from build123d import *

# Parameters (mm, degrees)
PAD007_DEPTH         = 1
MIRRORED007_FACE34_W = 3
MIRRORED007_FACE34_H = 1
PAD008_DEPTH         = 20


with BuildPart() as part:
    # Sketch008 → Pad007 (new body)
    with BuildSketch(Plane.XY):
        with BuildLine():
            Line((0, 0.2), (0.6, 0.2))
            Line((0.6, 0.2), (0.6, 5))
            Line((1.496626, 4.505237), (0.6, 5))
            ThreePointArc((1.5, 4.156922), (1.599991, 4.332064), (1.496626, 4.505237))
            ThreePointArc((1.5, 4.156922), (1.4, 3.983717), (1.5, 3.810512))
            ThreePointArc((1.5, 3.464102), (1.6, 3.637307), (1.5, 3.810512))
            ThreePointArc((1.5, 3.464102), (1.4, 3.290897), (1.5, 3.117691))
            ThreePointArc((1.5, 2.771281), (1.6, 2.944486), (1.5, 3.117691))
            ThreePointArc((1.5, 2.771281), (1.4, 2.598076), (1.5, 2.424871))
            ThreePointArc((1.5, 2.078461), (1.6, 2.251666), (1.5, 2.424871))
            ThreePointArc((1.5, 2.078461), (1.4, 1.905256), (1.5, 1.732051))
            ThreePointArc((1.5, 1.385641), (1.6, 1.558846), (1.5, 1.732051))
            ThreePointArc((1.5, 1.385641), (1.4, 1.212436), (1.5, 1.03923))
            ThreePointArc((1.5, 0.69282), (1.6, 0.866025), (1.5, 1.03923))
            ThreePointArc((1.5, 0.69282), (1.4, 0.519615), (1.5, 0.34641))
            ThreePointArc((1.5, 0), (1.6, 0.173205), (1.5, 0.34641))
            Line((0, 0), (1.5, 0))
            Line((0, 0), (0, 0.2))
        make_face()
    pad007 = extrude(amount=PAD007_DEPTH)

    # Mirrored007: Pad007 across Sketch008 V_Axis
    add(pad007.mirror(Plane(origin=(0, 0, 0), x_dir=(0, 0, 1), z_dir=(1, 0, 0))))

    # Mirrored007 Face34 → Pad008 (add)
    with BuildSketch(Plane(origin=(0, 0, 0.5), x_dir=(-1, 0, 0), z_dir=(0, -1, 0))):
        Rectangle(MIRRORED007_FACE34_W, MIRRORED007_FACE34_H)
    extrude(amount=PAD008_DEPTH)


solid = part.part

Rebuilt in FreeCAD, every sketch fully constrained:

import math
import FreeCAD as App
import Part
import Sketcher

V = App.Vector

doc = App.newDocument("Part")
params = doc.addObject("Spreadsheet::Sheet", "Params")
for row, (alias, value) in enumerate([
    ("sketch1_radius", "0.2 mm"),
    ("sketch1_width", "0.6 mm"),
    ("sketch1_width2", "1.5 mm"),
    ("sketch1_height", "0.2 mm"),
    ("sketch1_height2", "4.8 mm"),
    ("pad1_length", "1 mm"),
    ("sketch2_width", "3 mm"),
    ("sketch2_height", "1 mm"),
    ("pad2_length", "20 mm"),
], start=1):
    params.set(f"A{row}", alias)
    params.set(f"B{row}", "=" + value)
    params.setAlias(f"B{row}", alias)

body = doc.addObject("PartDesign::Body", "Body")

# Sketch on XY plane
sketch1 = doc.addObject("Sketcher::SketchObject", "Sketch")
body.addObject(sketch1)
sketch1.AttachmentSupport = (doc.XY_Plane, [""])
sketch1.MapMode = "FlatFace"
sketch1.addGeometry(Part.LineSegment(V(0.6, 0.2, 0), V(0, 0.2, 0)), False)
sketch1.addGeometry(Part.LineSegment(V(0, 0.2, 0), V(0, 0, 0)), False)
sketch1.addGeometry(Part.LineSegment(V(0, 0, 0), V(1.5, 0, 0)), False)
sketch1.addGeometry(Part.ArcOfCircle(Part.Circle(V(1.4, 0.17, 0), V(0, 0, 1), 0.2), math.radians(-60), math.radians(60)), False)
sketch1.addGeometry(Part.ArcOfCircle(Part.Circle(V(1.6, 0.52, 0), V(0, 0, 1), 0.2), math.radians(120), math.radians(240)), False)
sketch1.addGeometry(Part.ArcOfCircle(Part.Circle(V(1.4, 0.87, 0), V(0, 0, 1), 0.2), math.radians(-60), math.radians(60)), False)
sketch1.addGeometry(Part.ArcOfCircle(Part.Circle(V(1.6, 1.21, 0), V(0, 0, 1), 0.2), math.radians(120), math.radians(240)), False)
sketch1.addGeometry(Part.ArcOfCircle(Part.Circle(V(1.4, 1.56, 0), V(0, 0, 1), 0.2), math.radians(-60), math.radians(60)), False)
sketch1.addGeometry(Part.ArcOfCircle(Part.Circle(V(1.6, 1.91, 0), V(0, 0, 1), 0.2), math.radians(120), math.radians(240)), False)
sketch1.addGeometry(Part.ArcOfCircle(Part.Circle(V(1.4, 2.25, 0), V(0, 0, 1), 0.2), math.radians(-60), math.radians(60)), False)
sketch1.addGeometry(Part.ArcOfCircle(Part.Circle(V(1.6, 2.6, 0), V(0, 0, 1), 0.2), math.radians(120), math.radians(240)), False)
sketch1.addGeometry(Part.ArcOfCircle(Part.Circle(V(1.4, 2.94, 0), V(0, 0, 1), 0.2), math.radians(-60), math.radians(60)), False)
sketch1.addGeometry(Part.ArcOfCircle(Part.Circle(V(1.6, 3.29, 0), V(0, 0, 1), 0.2), math.radians(120), math.radians(240)), False)
sketch1.addGeometry(Part.ArcOfCircle(Part.Circle(V(1.4, 3.64, 0), V(0, 0, 1), 0.2), math.radians(-60), math.radians(60)), False)
sketch1.addGeometry(Part.ArcOfCircle(Part.Circle(V(1.6, 3.98, 0), V(0, 0, 1), 0.2), math.radians(120), math.radians(240)), False)
sketch1.addGeometry(Part.ArcOfCircle(Part.Circle(V(1.4, 4.33, 0), V(0, 0, 1), 0.2), math.radians(-60), math.radians(61)), False)
sketch1.addGeometry(Part.LineSegment(V(1.5, 4.51, 0), V(0.6, 5, 0)), False)
sketch1.addGeometry(Part.LineSegment(V(0.6, 5, 0), V(0.6, 0.2, 0)), False)
sketch1.addConstraint(Sketcher.Constraint("Coincident", 0, 2, 1, 1))
sketch1.addConstraint(Sketcher.Constraint("Coincident", 1, 2, 2, 1))
sketch1.addConstraint(Sketcher.Constraint("Coincident", 2, 2, 3, 1))
sketch1.addConstraint(Sketcher.Constraint("Tangent", 3, 2, 4, 2))
sketch1.addConstraint(Sketcher.Constraint("Tangent", 4, 1, 5, 1))
sketch1.addConstraint(Sketcher.Constraint("Coincident", 5, 2, 6, 2))
sketch1.addConstraint(Sketcher.Constraint("Coincident", 6, 1, 7, 1))
sketch1.addConstraint(Sketcher.Constraint("Tangent", 7, 2, 8, 2))
sketch1.addConstraint(Sketcher.Constraint("Tangent", 8, 1, 9, 1))
sketch1.addConstraint(Sketcher.Constraint("Tangent", 9, 2, 10, 2))
sketch1.addConstraint(Sketcher.Constraint("Tangent", 10, 1, 11, 1))
sketch1.addConstraint(Sketcher.Constraint("Coincident", 11, 2, 12, 2))
sketch1.addConstraint(Sketcher.Constraint("Coincident", 12, 1, 13, 1))
sketch1.addConstraint(Sketcher.Constraint("Tangent", 13, 2, 14, 2))
sketch1.addConstraint(Sketcher.Constraint("Coincident", 14, 1, 15, 1))
sketch1.addConstraint(Sketcher.Constraint("Coincident", 15, 2, 16, 1))
sketch1.addConstraint(Sketcher.Constraint("Coincident", 16, 2, 17, 1))
sketch1.addConstraint(Sketcher.Constraint("Coincident", 17, 2, 0, 1))
sketch1.addConstraint(Sketcher.Constraint("Horizontal", 0))
sketch1.addConstraint(Sketcher.Constraint("Vertical", 1))
sketch1.addConstraint(Sketcher.Constraint("Horizontal", 2))
sketch1.addConstraint(Sketcher.Constraint("Vertical", 17))
sketch1.addConstraint(Sketcher.Constraint("Coincident", 1, 2, -1, 1))
sketch1.addConstraint(Sketcher.Constraint("Equal", 3, 4))
sketch1.addConstraint(Sketcher.Constraint("Equal", 4, 5))
sketch1.addConstraint(Sketcher.Constraint("Equal", 5, 6))
sketch1.addConstraint(Sketcher.Constraint("Equal", 6, 7))
sketch1.addConstraint(Sketcher.Constraint("Equal", 7, 8))
sketch1.addConstraint(Sketcher.Constraint("Equal", 8, 9))
sketch1.addConstraint(Sketcher.Constraint("Equal", 9, 10))
sketch1.addConstraint(Sketcher.Constraint("Equal", 10, 11))
sketch1.addConstraint(Sketcher.Constraint("Equal", 11, 12))
sketch1.addConstraint(Sketcher.Constraint("Equal", 12, 13))
sketch1.addConstraint(Sketcher.Constraint("Equal", 13, 14))
sketch1.addConstraint(Sketcher.Constraint("Equal", 14, 15))
sketch1.addConstraint(Sketcher.Constraint("Vertical", 3, 3, 5, 3))
sketch1.addConstraint(Sketcher.Constraint("Vertical", 4, 3, 6, 3))
sketch1.addConstraint(Sketcher.Constraint("Vertical", 5, 3, 7, 3))
sketch1.addConstraint(Sketcher.Constraint("Vertical", 6, 3, 8, 3))
sketch1.addConstraint(Sketcher.Constraint("Vertical", 7, 3, 9, 3))
sketch1.addConstraint(Sketcher.Constraint("Vertical", 8, 3, 10, 3))
sketch1.addConstraint(Sketcher.Constraint("Vertical", 9, 3, 11, 3))
sketch1.addConstraint(Sketcher.Constraint("Vertical", 10, 3, 12, 3))
sketch1.addConstraint(Sketcher.Constraint("Vertical", 11, 3, 13, 3))
sketch1.addConstraint(Sketcher.Constraint("Vertical", 12, 3, 14, 3))
sketch1.addConstraint(Sketcher.Constraint("Vertical", 13, 3, 15, 3))
sketch1.addConstraint(Sketcher.Constraint("Vertical", 2, 2, 3, 2))
sketch1.addConstraint(Sketcher.Constraint("Vertical", 4, 1, 5, 2))
sketch1.addConstraint(Sketcher.Constraint("Vertical", 5, 2, 6, 1))
sketch1.addConstraint(Sketcher.Constraint("Vertical", 10, 1, 11, 2))
sketch1.addConstraint(Sketcher.Constraint("Vertical", 11, 2, 12, 1))
sketch1.addConstraint(Sketcher.Constraint("Vertical", 13, 2, 14, 1))
sketch1.addConstraint(Sketcher.Constraint("Radius", 3, 0.2))
sketch1.addConstraint(Sketcher.Constraint("DistanceX", 0, 2, 0, 1, 0.6))
sketch1.addConstraint(Sketcher.Constraint("DistanceX", 2, 1, 2, 2, 1.5))
sketch1.addConstraint(Sketcher.Constraint("DistanceY", 1, 2, 1, 1, 0.2))
sketch1.addConstraint(Sketcher.Constraint("DistanceY", 17, 2, 17, 1, 4.8))
sketch1.addConstraint(Sketcher.Constraint("DistanceX", 16, 2, 14, 3, 1.0))
sketch1.addConstraint(Sketcher.Constraint("DistanceY", 15, 3, 15, 2, 0.17511))
sketch1.setExpression("Constraints[52]", "Params.sketch1_radius")
sketch1.setExpression("Constraints[53]", "Params.sketch1_width")
sketch1.setExpression("Constraints[54]", "Params.sketch1_width2")
sketch1.setExpression("Constraints[55]", "Params.sketch1_height")
sketch1.setExpression("Constraints[56]", "Params.sketch1_height2")
pad1 = doc.addObject("PartDesign::Pad", "Pad")
body.addObject(pad1)
pad1.Profile = sketch1
pad1.setExpression("Length", "Params.pad1_length")
doc.recompute()

mirrored = doc.addObject("PartDesign::Mirrored", "Mirrored")
body.addObject(mirrored)
mirrored.Originals = [pad1]
mirrored.MirrorPlane = (doc.YZ_Plane, [""])
body.Tip = mirrored

# Sketch on XZ plane
sketch2 = doc.addObject("Sketcher::SketchObject", "Sketch001")
body.addObject(sketch2)
sketch2.AttachmentSupport = (doc.XZ_Plane, [""])
sketch2.MapMode = "FlatFace"
sketch2.addGeometry(Part.LineSegment(V(1.5, 0, 0), V(1.5, 1, 0)), False)
sketch2.addGeometry(Part.LineSegment(V(1.5, 1, 0), V(-1.5, 1, 0)), False)
sketch2.addGeometry(Part.LineSegment(V(-1.5, 1, 0), V(-1.5, 0, 0)), False)
sketch2.addGeometry(Part.LineSegment(V(-1.5, 0, 0), V(1.5, 0, 0)), False)
sketch2.addConstraint(Sketcher.Constraint("Coincident", 0, 2, 1, 1))
sketch2.addConstraint(Sketcher.Constraint("Coincident", 1, 2, 2, 1))
sketch2.addConstraint(Sketcher.Constraint("Coincident", 2, 2, 3, 1))
sketch2.addConstraint(Sketcher.Constraint("Coincident", 3, 2, 0, 1))
sketch2.addConstraint(Sketcher.Constraint("Vertical", 0))
sketch2.addConstraint(Sketcher.Constraint("Horizontal", 1))
sketch2.addConstraint(Sketcher.Constraint("Vertical", 2))
sketch2.addConstraint(Sketcher.Constraint("Horizontal", 3))
sketch2.addConstraint(Sketcher.Constraint("Symmetric", 2, 2, 3, 2, -1, 1))
sketch2.addConstraint(Sketcher.Constraint("DistanceX", 1, 2, 1, 1, 3.0))
sketch2.addConstraint(Sketcher.Constraint("DistanceY", 0, 1, 0, 2, 1.0))
sketch2.setExpression("Constraints[9]", "Params.sketch2_width")
sketch2.setExpression("Constraints[10]", "Params.sketch2_height")
pad2 = doc.addObject("PartDesign::Pad", "Pad001")
body.addObject(pad2)
pad2.Profile = sketch2
pad2.setExpression("Length", "Params.pad2_length")

doc.recompute()
